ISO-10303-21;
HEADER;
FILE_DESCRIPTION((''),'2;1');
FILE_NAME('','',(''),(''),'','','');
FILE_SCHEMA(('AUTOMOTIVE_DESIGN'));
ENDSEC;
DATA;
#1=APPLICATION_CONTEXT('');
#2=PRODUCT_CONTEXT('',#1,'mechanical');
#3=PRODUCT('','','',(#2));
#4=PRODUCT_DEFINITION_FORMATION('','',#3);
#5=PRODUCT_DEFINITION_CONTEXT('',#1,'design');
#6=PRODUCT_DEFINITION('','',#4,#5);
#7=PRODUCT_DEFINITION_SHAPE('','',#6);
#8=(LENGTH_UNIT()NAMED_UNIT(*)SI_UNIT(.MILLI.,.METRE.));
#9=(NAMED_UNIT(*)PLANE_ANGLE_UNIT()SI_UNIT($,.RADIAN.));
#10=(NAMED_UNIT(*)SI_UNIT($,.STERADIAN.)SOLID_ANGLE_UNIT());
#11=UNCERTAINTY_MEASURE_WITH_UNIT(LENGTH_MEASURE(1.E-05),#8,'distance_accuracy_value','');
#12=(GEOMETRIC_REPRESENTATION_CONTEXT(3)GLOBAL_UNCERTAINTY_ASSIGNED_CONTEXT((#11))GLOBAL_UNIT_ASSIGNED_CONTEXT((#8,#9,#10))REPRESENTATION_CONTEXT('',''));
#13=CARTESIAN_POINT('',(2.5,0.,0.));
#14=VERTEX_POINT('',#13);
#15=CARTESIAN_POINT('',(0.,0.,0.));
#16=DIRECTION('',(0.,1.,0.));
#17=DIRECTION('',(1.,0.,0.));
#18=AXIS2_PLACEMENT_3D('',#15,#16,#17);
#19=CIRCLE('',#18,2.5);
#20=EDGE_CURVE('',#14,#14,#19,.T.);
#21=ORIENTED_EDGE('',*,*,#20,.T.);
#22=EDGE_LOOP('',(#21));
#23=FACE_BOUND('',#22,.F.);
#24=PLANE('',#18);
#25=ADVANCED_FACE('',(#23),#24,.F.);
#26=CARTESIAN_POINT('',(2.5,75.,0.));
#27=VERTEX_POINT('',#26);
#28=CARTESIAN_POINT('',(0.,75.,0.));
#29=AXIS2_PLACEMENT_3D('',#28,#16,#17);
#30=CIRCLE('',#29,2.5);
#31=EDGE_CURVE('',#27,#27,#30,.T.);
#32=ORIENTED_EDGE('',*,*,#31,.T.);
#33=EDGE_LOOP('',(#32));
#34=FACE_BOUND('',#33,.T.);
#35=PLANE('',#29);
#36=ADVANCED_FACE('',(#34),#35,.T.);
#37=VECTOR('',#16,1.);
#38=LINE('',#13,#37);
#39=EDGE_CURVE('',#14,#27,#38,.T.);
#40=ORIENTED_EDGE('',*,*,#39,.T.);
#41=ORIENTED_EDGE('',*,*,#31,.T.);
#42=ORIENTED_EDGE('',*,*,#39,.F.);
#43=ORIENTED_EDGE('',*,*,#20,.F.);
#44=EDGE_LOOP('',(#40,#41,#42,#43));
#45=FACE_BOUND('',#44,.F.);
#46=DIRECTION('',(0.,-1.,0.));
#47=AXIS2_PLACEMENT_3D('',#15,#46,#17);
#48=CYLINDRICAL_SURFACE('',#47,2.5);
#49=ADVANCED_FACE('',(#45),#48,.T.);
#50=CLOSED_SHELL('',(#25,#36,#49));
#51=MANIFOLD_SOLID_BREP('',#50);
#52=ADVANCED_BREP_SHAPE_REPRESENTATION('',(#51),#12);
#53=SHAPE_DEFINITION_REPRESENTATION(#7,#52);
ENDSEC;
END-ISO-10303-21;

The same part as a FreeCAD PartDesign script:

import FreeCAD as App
import Part
import Sketcher
from FreeCAD import Vector

doc = App.newDocument("Part")
body = doc.addObject("PartDesign::Body", "Body")

# Sketch on XZ plane
sketch1 = body.newObject("Sketcher::SketchObject", "Sketch")
sketch1.AttachmentSupport = (doc.getObject("XZ_Plane"), [""])
sketch1.MapMode = "FlatFace"
sketch1.addGeometry(Part.Circle(Vector(0, 0, 0), Vector(0, 0, 1), 2.5), False)
sketch1.addConstraint([
    Sketcher.Constraint("Coincident", 0, 3, -1, 1),
    Sketcher.Constraint("Diameter", 0, 5.0),
])
pad1 = body.newObject("PartDesign::Pad", "Pad")
pad1.Profile = sketch1
pad1.Length = 75
pad1.Reversed = True

doc.recompute()
